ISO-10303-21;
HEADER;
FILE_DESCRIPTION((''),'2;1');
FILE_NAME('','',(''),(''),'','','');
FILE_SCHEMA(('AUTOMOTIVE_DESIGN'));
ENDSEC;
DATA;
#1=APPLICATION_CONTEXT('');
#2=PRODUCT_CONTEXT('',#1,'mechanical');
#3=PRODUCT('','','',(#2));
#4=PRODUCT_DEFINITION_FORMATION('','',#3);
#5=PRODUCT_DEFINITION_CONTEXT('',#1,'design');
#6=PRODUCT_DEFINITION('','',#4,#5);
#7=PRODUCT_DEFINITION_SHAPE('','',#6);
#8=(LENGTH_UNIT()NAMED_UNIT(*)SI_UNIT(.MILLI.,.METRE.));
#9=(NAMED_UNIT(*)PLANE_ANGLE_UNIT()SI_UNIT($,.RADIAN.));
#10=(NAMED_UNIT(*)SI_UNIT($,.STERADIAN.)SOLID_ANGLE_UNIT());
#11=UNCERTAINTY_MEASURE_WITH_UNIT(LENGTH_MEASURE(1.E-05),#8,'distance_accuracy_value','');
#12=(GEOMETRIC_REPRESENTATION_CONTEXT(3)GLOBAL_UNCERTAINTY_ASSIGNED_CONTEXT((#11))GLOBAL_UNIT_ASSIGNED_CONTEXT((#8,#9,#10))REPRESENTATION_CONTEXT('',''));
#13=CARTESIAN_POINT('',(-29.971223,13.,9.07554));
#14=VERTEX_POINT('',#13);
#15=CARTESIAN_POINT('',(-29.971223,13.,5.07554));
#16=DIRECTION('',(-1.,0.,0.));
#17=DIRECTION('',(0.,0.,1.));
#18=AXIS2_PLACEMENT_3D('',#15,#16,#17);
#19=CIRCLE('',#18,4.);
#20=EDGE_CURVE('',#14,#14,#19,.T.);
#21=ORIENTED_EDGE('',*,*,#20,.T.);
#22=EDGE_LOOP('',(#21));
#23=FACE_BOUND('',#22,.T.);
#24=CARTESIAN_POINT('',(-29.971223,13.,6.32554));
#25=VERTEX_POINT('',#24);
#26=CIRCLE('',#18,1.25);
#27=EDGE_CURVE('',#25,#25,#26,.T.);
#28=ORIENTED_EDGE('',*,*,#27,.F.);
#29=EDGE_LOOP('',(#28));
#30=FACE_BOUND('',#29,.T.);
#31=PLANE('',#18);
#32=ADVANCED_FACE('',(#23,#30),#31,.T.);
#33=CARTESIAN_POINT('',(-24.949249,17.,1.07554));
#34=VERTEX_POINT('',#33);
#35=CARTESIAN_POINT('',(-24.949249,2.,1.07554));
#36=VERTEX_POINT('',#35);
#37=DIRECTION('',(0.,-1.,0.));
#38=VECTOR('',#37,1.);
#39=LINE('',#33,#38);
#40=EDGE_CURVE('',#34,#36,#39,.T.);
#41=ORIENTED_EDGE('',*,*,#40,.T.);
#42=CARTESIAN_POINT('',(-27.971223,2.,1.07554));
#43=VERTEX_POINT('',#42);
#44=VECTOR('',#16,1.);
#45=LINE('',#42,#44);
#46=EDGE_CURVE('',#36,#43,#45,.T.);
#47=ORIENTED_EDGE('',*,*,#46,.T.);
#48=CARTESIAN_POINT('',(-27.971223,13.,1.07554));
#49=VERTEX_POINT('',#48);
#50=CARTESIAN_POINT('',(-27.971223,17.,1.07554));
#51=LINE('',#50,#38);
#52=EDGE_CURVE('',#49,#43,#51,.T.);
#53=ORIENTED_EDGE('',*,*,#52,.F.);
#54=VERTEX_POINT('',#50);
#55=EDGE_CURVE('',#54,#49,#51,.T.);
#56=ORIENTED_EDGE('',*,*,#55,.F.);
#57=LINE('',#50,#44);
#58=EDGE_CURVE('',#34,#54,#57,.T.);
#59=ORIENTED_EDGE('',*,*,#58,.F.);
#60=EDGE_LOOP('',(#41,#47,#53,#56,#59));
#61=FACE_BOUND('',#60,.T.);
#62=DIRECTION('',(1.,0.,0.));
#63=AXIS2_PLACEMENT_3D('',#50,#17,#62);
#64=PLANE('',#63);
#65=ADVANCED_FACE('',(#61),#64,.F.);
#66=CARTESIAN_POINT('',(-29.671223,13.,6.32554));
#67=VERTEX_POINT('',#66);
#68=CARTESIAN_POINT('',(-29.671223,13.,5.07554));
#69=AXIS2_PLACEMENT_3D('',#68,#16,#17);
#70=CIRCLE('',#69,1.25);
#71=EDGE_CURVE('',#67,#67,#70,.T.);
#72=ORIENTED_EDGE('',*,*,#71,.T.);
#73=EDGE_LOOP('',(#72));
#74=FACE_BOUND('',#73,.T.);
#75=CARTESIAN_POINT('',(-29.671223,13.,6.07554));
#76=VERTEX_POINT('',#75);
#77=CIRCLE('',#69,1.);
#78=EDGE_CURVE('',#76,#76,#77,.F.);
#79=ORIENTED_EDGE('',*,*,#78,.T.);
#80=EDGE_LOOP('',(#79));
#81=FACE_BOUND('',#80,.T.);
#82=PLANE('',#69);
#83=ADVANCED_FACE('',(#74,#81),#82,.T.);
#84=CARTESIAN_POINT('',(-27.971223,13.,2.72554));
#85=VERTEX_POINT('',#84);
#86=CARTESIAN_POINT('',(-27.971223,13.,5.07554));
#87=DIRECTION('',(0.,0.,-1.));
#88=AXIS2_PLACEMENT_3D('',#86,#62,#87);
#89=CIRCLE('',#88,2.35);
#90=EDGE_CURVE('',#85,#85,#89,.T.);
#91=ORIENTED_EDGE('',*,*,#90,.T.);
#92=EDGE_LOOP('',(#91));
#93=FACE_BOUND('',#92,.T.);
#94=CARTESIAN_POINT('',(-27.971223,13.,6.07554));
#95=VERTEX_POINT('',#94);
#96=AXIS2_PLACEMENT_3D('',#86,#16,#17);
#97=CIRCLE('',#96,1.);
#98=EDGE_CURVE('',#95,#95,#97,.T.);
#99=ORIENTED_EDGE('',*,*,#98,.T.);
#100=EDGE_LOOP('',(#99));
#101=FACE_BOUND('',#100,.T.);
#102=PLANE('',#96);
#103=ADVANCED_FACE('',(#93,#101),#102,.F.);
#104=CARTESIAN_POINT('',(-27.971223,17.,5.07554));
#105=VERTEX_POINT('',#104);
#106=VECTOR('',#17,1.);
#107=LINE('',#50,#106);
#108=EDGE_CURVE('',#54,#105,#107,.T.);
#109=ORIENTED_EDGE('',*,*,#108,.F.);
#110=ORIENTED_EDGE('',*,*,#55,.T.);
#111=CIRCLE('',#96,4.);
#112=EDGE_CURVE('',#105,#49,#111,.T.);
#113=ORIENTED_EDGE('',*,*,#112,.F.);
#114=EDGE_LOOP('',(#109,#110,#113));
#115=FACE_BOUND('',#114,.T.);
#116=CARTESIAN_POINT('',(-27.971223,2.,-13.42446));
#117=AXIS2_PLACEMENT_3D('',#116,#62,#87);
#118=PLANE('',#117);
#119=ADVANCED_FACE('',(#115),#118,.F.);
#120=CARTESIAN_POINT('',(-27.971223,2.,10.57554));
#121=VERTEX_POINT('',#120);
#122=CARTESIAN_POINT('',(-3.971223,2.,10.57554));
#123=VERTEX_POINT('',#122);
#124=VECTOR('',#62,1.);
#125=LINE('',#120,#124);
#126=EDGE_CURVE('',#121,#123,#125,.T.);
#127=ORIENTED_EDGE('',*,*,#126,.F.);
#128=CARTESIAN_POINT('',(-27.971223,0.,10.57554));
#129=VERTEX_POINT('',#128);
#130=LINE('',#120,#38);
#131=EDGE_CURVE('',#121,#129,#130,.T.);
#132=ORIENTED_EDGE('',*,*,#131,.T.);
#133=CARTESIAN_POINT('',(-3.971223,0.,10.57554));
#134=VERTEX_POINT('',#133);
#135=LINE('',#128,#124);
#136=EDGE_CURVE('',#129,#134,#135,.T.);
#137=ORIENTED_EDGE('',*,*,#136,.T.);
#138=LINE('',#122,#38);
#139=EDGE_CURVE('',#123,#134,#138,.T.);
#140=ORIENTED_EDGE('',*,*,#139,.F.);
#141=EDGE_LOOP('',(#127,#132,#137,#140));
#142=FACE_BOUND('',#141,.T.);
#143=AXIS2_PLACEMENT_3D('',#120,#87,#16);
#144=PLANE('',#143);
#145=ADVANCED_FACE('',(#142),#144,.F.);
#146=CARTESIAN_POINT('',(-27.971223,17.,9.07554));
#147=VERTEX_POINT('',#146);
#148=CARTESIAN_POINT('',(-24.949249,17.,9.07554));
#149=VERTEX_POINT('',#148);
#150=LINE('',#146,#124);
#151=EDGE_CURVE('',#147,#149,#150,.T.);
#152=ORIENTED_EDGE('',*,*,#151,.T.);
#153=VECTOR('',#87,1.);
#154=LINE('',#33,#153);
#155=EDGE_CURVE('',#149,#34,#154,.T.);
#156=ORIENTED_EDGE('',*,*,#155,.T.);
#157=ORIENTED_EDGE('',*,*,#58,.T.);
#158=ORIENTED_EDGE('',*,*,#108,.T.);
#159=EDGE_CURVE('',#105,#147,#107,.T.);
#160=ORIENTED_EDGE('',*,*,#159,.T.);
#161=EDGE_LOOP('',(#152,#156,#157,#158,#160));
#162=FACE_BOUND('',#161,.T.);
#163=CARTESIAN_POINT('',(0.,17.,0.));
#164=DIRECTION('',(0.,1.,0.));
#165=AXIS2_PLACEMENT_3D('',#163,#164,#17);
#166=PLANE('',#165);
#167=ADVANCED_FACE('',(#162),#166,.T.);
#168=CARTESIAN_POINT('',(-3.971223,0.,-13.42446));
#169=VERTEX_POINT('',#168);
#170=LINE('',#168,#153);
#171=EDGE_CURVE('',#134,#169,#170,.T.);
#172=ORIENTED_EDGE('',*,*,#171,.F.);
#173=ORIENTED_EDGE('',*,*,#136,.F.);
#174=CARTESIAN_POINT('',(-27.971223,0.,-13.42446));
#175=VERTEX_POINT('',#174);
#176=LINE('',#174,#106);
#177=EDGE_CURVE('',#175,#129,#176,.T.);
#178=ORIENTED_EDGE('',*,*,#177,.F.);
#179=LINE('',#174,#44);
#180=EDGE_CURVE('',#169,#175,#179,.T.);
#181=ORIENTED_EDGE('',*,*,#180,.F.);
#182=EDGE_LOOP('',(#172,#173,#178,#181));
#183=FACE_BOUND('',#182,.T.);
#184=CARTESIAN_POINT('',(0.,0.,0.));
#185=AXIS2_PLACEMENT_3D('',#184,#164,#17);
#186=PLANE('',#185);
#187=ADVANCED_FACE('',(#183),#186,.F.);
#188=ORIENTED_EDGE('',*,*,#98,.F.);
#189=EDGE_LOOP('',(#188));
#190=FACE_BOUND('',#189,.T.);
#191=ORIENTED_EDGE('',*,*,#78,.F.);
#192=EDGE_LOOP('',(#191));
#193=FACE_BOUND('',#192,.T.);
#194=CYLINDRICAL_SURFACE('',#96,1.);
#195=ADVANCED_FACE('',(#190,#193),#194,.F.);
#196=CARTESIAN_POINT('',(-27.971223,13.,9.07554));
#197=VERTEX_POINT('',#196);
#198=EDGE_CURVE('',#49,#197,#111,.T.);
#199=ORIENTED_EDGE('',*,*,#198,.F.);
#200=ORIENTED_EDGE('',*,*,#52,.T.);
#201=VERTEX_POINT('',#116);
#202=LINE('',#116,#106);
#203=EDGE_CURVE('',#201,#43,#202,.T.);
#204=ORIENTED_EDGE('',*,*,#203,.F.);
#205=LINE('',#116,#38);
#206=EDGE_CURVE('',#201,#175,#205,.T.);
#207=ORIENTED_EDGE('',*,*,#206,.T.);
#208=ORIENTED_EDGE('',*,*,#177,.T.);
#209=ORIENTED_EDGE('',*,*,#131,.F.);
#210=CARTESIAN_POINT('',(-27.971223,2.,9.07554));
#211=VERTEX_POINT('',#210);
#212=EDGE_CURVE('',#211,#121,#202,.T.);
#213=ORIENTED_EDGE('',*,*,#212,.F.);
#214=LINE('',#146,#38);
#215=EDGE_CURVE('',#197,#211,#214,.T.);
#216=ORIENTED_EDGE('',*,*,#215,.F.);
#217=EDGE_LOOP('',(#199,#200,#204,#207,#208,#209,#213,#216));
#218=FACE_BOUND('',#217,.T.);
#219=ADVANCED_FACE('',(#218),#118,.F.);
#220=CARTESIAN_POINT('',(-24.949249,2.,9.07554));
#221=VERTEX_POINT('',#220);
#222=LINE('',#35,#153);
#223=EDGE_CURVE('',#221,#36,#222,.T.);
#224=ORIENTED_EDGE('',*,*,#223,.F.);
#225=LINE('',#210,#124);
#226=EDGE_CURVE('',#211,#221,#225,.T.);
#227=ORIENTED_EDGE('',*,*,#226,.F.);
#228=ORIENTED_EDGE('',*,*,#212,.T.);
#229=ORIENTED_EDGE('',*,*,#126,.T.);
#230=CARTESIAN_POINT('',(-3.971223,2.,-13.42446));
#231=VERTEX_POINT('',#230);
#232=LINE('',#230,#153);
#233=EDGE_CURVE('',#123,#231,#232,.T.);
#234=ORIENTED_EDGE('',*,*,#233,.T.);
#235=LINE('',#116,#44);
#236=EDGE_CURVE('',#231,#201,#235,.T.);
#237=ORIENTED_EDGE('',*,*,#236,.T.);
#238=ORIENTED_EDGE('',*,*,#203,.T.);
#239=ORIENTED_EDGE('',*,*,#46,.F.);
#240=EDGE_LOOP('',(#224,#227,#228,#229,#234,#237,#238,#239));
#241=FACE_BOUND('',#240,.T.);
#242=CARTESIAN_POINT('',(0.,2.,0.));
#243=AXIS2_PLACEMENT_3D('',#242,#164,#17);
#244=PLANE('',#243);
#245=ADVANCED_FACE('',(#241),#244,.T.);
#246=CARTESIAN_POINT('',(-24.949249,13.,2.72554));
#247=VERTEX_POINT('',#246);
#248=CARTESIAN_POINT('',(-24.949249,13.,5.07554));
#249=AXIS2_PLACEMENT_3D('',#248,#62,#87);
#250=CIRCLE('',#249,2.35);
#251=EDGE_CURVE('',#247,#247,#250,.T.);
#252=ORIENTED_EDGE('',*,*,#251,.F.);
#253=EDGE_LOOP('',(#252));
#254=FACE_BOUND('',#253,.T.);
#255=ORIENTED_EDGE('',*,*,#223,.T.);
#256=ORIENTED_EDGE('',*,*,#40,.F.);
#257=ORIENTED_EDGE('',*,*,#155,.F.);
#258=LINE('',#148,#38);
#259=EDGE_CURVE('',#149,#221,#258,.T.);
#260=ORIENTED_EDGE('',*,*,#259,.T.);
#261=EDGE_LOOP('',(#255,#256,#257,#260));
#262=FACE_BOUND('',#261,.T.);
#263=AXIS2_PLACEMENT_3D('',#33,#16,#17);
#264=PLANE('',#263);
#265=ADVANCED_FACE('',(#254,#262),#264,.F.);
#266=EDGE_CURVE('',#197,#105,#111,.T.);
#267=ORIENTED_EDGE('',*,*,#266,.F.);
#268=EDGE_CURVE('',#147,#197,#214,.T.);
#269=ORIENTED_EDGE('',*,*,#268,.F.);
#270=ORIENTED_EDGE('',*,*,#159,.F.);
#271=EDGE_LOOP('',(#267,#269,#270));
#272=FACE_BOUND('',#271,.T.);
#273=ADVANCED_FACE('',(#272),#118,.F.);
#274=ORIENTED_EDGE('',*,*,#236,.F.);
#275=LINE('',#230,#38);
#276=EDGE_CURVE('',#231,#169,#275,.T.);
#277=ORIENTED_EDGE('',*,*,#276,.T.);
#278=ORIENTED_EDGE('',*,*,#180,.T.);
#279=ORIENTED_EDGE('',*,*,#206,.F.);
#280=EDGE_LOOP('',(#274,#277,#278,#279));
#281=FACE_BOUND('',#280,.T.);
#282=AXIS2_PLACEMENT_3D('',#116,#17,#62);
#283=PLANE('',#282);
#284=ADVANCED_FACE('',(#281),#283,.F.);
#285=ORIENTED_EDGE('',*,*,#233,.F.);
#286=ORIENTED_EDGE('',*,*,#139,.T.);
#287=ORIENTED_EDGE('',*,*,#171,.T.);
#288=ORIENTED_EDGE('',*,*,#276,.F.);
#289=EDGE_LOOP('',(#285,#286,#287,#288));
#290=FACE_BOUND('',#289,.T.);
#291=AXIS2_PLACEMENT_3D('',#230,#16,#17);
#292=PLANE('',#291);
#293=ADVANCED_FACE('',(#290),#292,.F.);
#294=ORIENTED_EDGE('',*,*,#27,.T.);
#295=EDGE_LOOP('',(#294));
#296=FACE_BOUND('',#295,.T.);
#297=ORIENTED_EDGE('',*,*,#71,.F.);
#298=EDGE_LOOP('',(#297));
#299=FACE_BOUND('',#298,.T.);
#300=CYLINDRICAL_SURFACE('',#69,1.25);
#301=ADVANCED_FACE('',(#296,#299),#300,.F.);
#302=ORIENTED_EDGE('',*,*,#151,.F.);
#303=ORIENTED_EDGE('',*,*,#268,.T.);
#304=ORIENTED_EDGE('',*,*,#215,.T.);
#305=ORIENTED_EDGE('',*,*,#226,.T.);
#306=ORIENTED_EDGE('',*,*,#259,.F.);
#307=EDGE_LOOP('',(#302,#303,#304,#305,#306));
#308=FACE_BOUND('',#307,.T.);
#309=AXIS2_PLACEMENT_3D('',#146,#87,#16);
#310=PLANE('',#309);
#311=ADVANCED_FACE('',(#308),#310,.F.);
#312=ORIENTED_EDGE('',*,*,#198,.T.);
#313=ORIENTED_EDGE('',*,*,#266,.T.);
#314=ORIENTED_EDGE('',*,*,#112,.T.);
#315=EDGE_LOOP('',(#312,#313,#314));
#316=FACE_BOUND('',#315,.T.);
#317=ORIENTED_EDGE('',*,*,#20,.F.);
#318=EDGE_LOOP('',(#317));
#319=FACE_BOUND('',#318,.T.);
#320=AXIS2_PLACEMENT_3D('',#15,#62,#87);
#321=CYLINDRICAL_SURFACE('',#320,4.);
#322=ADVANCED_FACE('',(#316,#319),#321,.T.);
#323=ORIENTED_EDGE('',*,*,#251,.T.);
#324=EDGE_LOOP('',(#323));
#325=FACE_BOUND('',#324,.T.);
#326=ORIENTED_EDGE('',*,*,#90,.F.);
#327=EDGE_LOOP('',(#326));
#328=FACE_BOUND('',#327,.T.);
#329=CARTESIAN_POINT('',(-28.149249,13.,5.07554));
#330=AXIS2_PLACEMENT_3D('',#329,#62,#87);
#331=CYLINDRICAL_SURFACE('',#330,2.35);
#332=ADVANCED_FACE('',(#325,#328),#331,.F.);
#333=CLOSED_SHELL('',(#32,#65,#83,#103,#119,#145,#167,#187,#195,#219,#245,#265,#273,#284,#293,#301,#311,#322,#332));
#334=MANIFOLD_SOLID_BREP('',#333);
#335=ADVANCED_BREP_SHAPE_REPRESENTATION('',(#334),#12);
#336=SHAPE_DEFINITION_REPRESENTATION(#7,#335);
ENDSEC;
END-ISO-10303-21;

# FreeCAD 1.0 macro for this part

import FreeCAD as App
import Part
import Sketcher


def add_polygon(sketch, points):
    """Adds a closed chain of lines whose ends are joined by coincident constraints."""
    first, n = sketch.GeometryCount, len(points)
    for a, b in zip(points, points[1:] + points[:1]):
        sketch.addGeometry(Part.LineSegment(App.Vector(*a, 0), App.Vector(*b, 0)), False)
    for i in range(n):
        sketch.addConstraint(Sketcher.Constraint("Coincident", first + i, 2, first + (i + 1) % n, 1))

doc = App.newDocument("Part")
params = doc.addObject("Spreadsheet::Sheet", "Params")
for row, (alias, value) in enumerate([
    ("sketch1_width", "24 mm"),
    ("pad1_length", "2 mm"),
    ("sketch2_height", "8 mm"),
    ("pad2_length", "15 mm"),
    ("sketch3_diameter", "4.7 mm"),
    ("pocket1_length", "3.2 mm"),
    ("sketch4_diameter", "8 mm"),
    ("pad3_length", "2 mm"),
    ("sketch5_diameter", "2 mm"),
    ("pocket2_length", "2 mm"),
    ("sketch6_diameter", "2.5 mm"),
    ("pocket3_length", "0.3 mm"),
], start=1):
    params.set(f"A{row}", alias)
    params.set(f"B{row}", "=" + value)
    params.setAlias(f"B{row}", alias)

body = doc.addObject("PartDesign::Body", "Body")

# Sketch on XZ plane
sketch1 = doc.addObject("Sketcher::SketchObject", "Sketch")
body.addObject(sketch1)
sketch1.AttachmentSupport = (doc.XZ_Plane, [""])
sketch1.MapMode = "FlatFace"
add_polygon(sketch1, [(-27.971223, -13.42446), (-27.971223, 10.57554), (-3.971223, 10.57554), (-3.971223, -13.42446)])  # lines 0-3
sketch1.addConstraint([
    Sketcher.Constraint("Vertical", 0),
    Sketcher.Constraint("Horizontal", 1),
    Sketcher.Constraint("Vertical", 2),
    Sketcher.Constraint("Horizontal", 3),
    Sketcher.Constraint("Equal", 3, 0),
    Sketcher.Constraint("DistanceX", 1, 1, 1, 2, 24.0),
    Sketcher.Constraint("DistanceY", -1, 1, 0, 2, 10.57554),
    Sketcher.Constraint("DistanceX", 0, 2, -1, 1, 27.971223),
])
sketch1.setExpression("Constraints[9]", "Params.sketch1_width")
pad1 = doc.addObject("PartDesign::Pad", "Pad")
body.addObject(pad1)
pad1.Profile = sketch1
pad1.setExpression("Length", "Params.pad1_length")
pad1.Reversed = True

# Sketch on XZ plane
sketch2 = doc.addObject("Sketcher::SketchObject", "Sketch001")
body.addObject(sketch2)
sketch2.AttachmentSupport = (doc.XZ_Plane, [""])
sketch2.MapMode = "FlatFace"
sketch2.AttachmentOffset = App.Placement(App.Vector(0, 0, -2), App.Rotation())
add_polygon(sketch2, [(-27.971223, 1.07554), (-27.971223, 9.07554), (-24.949249, 9.07554), (-24.949249, 1.07554)])  # lines 0-3
sketch2.addConstraint([
    Sketcher.Constraint("Vertical", 0),
    Sketcher.Constraint("Horizontal", 1),
    Sketcher.Constraint("Vertical", 2),
    Sketcher.Constraint("Horizontal", 3),
    Sketcher.Constraint("DistanceY", 0, 1, 0, 2, 8.0),
    Sketcher.Constraint("DistanceX", 1, 1, 1, 2, 3.021974),
    Sketcher.Constraint("DistanceY", -1, 1, 0, 2, 9.07554),
    Sketcher.Constraint("DistanceX", 1, 2, -1, 1, 24.949249),
])
sketch2.setExpression("Constraints[8]", "Params.sketch2_height")
pad2 = doc.addObject("PartDesign::Pad", "Pad001")
body.addObject(pad2)
pad2.Profile = sketch2
pad2.setExpression("Length", "Params.pad2_length")
pad2.Reversed = True

# Sketch on YZ plane
sketch3 = doc.addObject("Sketcher::SketchObject", "Sketch002")
body.addObject(sketch3)
sketch3.AttachmentSupport = (doc.YZ_Plane, [""])
sketch3.MapMode = "FlatFace"
sketch3.AttachmentOffset = App.Placement(App.Vector(0, 0, -24.949249), App.Rotation())
sketch3.addGeometry(Part.Circle(App.Vector(13, 5.07554, 0), App.Vector(0, 0, 1), 2.35), False)
sketch3.addConstraint([
    Sketcher.Constraint("Diameter", 0, 4.7),
    Sketcher.Constraint("DistanceX", -1, 1, 0, 3, 13.0),
    Sketcher.Constraint("DistanceY", -1, 1, 0, 3, 5.07554),
])
sketch3.setExpression("Constraints[0]", "Params.sketch3_diameter")
pocket1 = doc.addObject("PartDesign::Pocket", "Pocket")
body.addObject(pocket1)
pocket1.Profile = sketch3
pocket1.setExpression("Length", "Params.pocket1_length")

# Sketch on YZ plane
sketch4 = doc.addObject("Sketcher::SketchObject", "Sketch003")
body.addObject(sketch4)
sketch4.AttachmentSupport = (doc.YZ_Plane, [""])
sketch4.MapMode = "FlatFace"
sketch4.AttachmentOffset = App.Placement(App.Vector(0, 0, -27.971223), App.Rotation())
sketch4.addGeometry(Part.Circle(App.Vector(13, 5.07554, 0), App.Vector(0, 0, 1), 4), False)
sketch4.addConstraint([
    Sketcher.Constraint("Diameter", 0, 8.0),
    Sketcher.Constraint("DistanceX", -1, 1, 0, 3, 13.0),
    Sketcher.Constraint("DistanceY", -1, 1, 0, 3, 5.07554),
])
sketch4.setExpression("Constraints[0]", "Params.sketch4_diameter")
pad3 = doc.addObject("PartDesign::Pad", "Pad002")
body.addObject(pad3)
pad3.Profile = sketch4
pad3.setExpression("Length", "Params.pad3_length")
pad3.Reversed = True

# Sketch on YZ plane
sketch5 = doc.addObject("Sketcher::SketchObject", "Sketch004")
body.addObject(sketch5)
sketch5.AttachmentSupport = (doc.YZ_Plane, [""])
sketch5.MapMode = "FlatFace"
sketch5.AttachmentOffset = App.Placement(App.Vector(0, 0, -29.971223), App.Rotation())
sketch5.addGeometry(Part.Circle(App.Vector(13, 5.07554, 0), App.Vector(0, 0, 1), 1), False)
sketch5.addConstraint([
    Sketcher.Constraint("Diameter", 0, 2.0),
    Sketcher.Constraint("DistanceX", -1, 1, 0, 3, 13.0),
    Sketcher.Constraint("DistanceY", -1, 1, 0, 3, 5.07554),
])
sketch5.setExpression("Constraints[0]", "Params.sketch5_diameter")
pocket2 = doc.addObject("PartDesign::Pocket", "Pocket001")
body.addObject(pocket2)
pocket2.Profile = sketch5
pocket2.setExpression("Length", "Params.pocket2_length")
pocket2.Reversed = True

# Sketch on YZ plane
sketch6 = doc.addObject("Sketcher::SketchObject", "Sketch005")
body.addObject(sketch6)
sketch6.AttachmentSupport = (doc.YZ_Plane, [""])
sketch6.MapMode = "FlatFace"
sketch6.AttachmentOffset = App.Placement(App.Vector(0, 0, -29.971223), App.Rotation())
sketch6.addGeometry(Part.Circle(App.Vector(13, 5.07554, 0), App.Vector(0, 0, 1), 1.25), False)
sketch6.addConstraint([
    Sketcher.Constraint("Diameter", 0, 2.5),
    Sketcher.Constraint("DistanceX", -1, 1, 0, 3, 13.0),
    Sketcher.Constraint("DistanceY", -1, 1, 0, 3, 5.07554),
])
sketch6.setExpression("Constraints[0]", "Params.sketch6_diameter")
pocket3 = doc.addObject("PartDesign::Pocket", "Pocket002")
body.addObject(pocket3)
pocket3.Profile = sketch6
pocket3.setExpression("Length", "Params.pocket3_length")
pocket3.Reversed = True

doc.recompute()
